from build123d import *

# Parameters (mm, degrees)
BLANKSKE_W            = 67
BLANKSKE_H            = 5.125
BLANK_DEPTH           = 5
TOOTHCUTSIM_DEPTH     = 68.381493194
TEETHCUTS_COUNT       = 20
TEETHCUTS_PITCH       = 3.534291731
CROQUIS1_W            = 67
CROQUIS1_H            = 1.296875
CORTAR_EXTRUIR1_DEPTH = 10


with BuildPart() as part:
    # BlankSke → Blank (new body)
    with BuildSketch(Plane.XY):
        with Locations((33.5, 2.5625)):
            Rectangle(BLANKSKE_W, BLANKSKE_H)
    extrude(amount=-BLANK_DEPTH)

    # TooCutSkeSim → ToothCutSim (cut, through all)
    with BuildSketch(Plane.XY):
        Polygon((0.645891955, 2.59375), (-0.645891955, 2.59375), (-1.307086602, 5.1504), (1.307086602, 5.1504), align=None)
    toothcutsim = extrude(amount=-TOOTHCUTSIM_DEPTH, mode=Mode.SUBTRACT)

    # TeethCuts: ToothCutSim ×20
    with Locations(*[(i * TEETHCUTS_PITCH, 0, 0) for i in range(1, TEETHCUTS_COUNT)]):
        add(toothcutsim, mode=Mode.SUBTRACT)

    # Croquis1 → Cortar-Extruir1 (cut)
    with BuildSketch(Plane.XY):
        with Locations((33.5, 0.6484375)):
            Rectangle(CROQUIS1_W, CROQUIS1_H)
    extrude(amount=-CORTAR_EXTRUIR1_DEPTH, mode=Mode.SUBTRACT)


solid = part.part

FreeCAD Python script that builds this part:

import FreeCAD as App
import Part
import Sketcher
Q = App.Units.Quantity


def add_polygon(sketch, points):
    """Adds a closed chain of lines whose ends are joined by coincident constraints."""
    first, n = sketch.GeometryCount, len(points)
    for a, b in zip(points, points[1:] + points[:1]):
        sketch.addGeometry(Part.LineSegment(App.Vector(*a, 0), App.Vector(*b, 0)), False)
    for i in range(n):
        sketch.addConstraint(Sketcher.Constraint("Coincident", first + i, 2, first + (i + 1) % n, 1))

doc = App.newDocument("Part")
body = doc.addObject("PartDesign::Body", "Body")

sketch1 = body.newObject("Sketcher::SketchObject", "Sketch")
sketch1.AttachmentSupport = (doc.getObject("XY_Plane"), [""])
sketch1.MapMode = "FlatFace"
add_polygon(sketch1, [(0, 5.125), (0, 0), (67, 0), (67, 5.125)])
sketch1.addConstraint([
    Sketcher.Constraint("Vertical", 0),
    Sketcher.Constraint("Horizontal", 1),
    Sketcher.Constraint("Vertical", 2),
    Sketcher.Constraint("Horizontal", 3),
    Sketcher.Constraint("Coincident", 0, 2, -1, 1),
    Sketcher.Constraint("DistanceX", 1, 1, 1, 2, Q("67 mm")),
    Sketcher.Constraint("DistanceY", 0, 2, 0, 1, Q("5.125 mm")),
])
pad1 = body.newObject("PartDesign::Pad", "Pad")
pad1.Profile = sketch1
pad1.Length = 5
pad1.Reversed = True

sketch2 = body.newObject("Sketcher::SketchObject", "Sketch001")
sketch2.AttachmentSupport = (doc.getObject("XY_Plane"), [""])
sketch2.MapMode = "FlatFace"
add_polygon(sketch2, [(-0.645892, 2.59375), (0.645892, 2.59375), (1.307087, 5.1504), (-1.307087, 5.1504)])
sketch2.addConstraint([
    Sketcher.Constraint("Horizontal", 0),
    Sketcher.Constraint("Horizontal", 2),
    Sketcher.Constraint("Equal", 1, 3),
    Sketcher.Constraint("Angle", 1, Q("75.5 deg")),
    Sketcher.Constraint("DistanceY", -1, 1, 1, 2, Q("5.1504 mm")),
    Sketcher.Constraint("DistanceX", 0, 1, 0, 2, Q("1.291784 mm")),
    Sketcher.Constraint("DistanceX", 2, 2, 2, 1, Q("2.614173 mm")),
    Sketcher.Constraint("DistanceX", -1, 1, 0, 2, Q("0.645892 mm")),
])
pocket1 = body.newObject("PartDesign::Pocket", "Pocket")
pocket1.Profile = sketch2
pocket1.Type = "ThroughAll"
doc.recompute()

linearpattern = body.newObject("PartDesign::LinearPattern", "LinearPattern")
linearpattern.Originals = [pocket1]
linearpattern.Direction = (doc.getObject("X_Axis"), [""])
linearpattern.Mode = "offset"
linearpattern.Offset = 3.534292
linearpattern.Occurrences = 20
body.Tip = linearpattern

sketch3 = body.newObject("Sketcher::SketchObject", "Sketch002")
sketch3.AttachmentSupport = (doc.getObject("XY_Plane"), [""])
sketch3.MapMode = "FlatFace"
add_polygon(sketch3, [(0, 1.296875), (0, 0), (67, 0), (67, 1.296875)])
sketch3.addConstraint([
    Sketcher.Constraint("Vertical", 0),
    Sketcher.Constraint("Horizontal", 1),
    Sketcher.Constraint("Vertical", 2),
    Sketcher.Constraint("Horizontal", 3),
    Sketcher.Constraint("Coincident", 0, 2, -1, 1),
    Sketcher.Constraint("DistanceX", 1, 1, 1, 2, Q("67 mm")),
    Sketcher.Constraint("DistanceY", 0, 2, 0, 1, Q("1.296875 mm")),
])
pocket2 = body.newObject("PartDesign::Pocket", "Pocket001")
pocket2.Profile = sketch3
pocket2.Length = 10

doc.recompute()
